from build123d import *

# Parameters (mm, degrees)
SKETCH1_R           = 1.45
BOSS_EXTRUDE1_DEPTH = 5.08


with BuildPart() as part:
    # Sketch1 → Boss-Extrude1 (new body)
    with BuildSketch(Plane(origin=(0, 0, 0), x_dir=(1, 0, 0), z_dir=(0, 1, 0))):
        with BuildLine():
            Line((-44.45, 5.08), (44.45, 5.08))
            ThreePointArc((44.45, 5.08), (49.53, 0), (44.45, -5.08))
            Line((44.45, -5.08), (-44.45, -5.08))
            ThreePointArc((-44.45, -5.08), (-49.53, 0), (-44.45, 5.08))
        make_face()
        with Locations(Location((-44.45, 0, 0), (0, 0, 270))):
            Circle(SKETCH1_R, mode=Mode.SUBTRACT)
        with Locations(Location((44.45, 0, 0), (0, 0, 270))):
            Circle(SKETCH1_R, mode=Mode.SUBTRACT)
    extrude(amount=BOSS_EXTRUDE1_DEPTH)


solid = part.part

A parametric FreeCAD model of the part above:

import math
import FreeCAD as App
import Part
import Sketcher
from FreeCAD import Vector
Q = App.Units.Quantity

doc = App.newDocument("Part")
params = doc.addObject("Spreadsheet::Sheet", "Params")
for row, (alias, value) in enumerate([
    ("sketch1_radius", "0.2 in"),
    ("sketch1_width", "3.5 in"),
    ("pad1_length", "0.2 in"),
], start=1):
    params.set(f"A{row}", alias)
    params.set(f"B{row}", "=" + value)
    params.setAlias(f"B{row}", alias)

body = doc.addObject("PartDesign::Body", "Body")

sketch1 = doc.addObject("Sketcher::SketchObject", "Sketch")
body.addObject(sketch1)
sketch1.AttachmentSupport = (doc.XZ_Plane, [""])
sketch1.MapMode = "FlatFace"
sketch1.addGeometry(Part.LineSegment(Vector(44.45, -5.08, 0), Vector(-44.45, -5.08, 0)), False)
sketch1.addGeometry(Part.ArcOfCircle(Part.Circle(Vector(-44.45, 0, 0), Vector(0, 0, 1), 5.08), math.radians(90), math.radians(270)), False)
sketch1.addGeometry(Part.LineSegment(Vector(-44.45, 5.08, 0), Vector(44.45, 5.08, 0)), False)
sketch1.addGeometry(Part.ArcOfCircle(Part.Circle(Vector(44.45, 0, 0), Vector(0, 0, 1), 5.08), math.radians(-90), math.radians(90)), False)
sketch1.addGeometry(Part.Circle(Vector(44.45, 0, 0), Vector(0, 0, 1), 1.45), False)
sketch1.addGeometry(Part.Circle(Vector(-44.45, 0, 0), Vector(0, 0, 1), 1.45), False)
sketch1.addConstraint(Sketcher.Constraint("Tangent", 0, 2, 1, 2))
sketch1.addConstraint(Sketcher.Constraint("Tangent", 1, 1, 2, 1))
sketch1.addConstraint(Sketcher.Constraint("Tangent", 2, 2, 3, 2))
sketch1.addConstraint(Sketcher.Constraint("Tangent", 3, 1, 0, 1))
sketch1.addConstraint(Sketcher.Constraint("Horizontal", 0))
sketch1.addConstraint(Sketcher.Constraint("Horizontal", 2))
sketch1.addConstraint(Sketcher.Constraint("Coincident", 4, 3, 3, 3))
sketch1.addConstraint(Sketcher.Constraint("Coincident", 5, 3, 1, 3))
sketch1.addConstraint(Sketcher.Constraint("Equal", 4, 5))
sketch1.addConstraint(Sketcher.Constraint("Symmetric", 1, 3, 3, 3, -1, 1))
sketch1.addConstraint(Sketcher.Constraint("Radius", 1, Q("0.2 in")))
sketch1.addConstraint(Sketcher.Constraint("DistanceX", 0, 2, 0, 1, Q("3.5 in")))
sketch1.addConstraint(Sketcher.Constraint("Diameter", 4, 2.9))
sketch1.setExpression("Constraints[10]", "Params.sketch1_radius")
sketch1.setExpression("Constraints[11]", "Params.sketch1_width")
pad1 = doc.addObject("PartDesign::Pad", "Pad")
body.addObject(pad1)
pad1.Profile = sketch1
pad1.setExpression("Length", "Params.pad1_length")
pad1.Reversed = True

doc.recompute()
